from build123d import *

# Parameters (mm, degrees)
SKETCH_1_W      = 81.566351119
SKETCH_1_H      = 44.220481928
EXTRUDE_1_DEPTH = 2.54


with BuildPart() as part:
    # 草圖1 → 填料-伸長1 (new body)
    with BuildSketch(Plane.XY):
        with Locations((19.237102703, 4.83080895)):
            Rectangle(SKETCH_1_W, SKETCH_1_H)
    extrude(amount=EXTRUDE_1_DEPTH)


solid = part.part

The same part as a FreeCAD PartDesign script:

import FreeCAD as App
import Part
import Sketcher

doc = App.newDocument("Part")
params = doc.addObject("Spreadsheet::Sheet", "Params")
for row, (alias, value) in enumerate([
    ("pad1_length", "0.1 in"),
], start=1):
    params.set(f"A{row}", alias)
    params.set(f"B{row}", "=" + value)
    params.setAlias(f"B{row}", alias)

body = doc.addObject("PartDesign::Body", "Body")

# Sketch on XY plane
sketch1 = doc.addObject("Sketcher::SketchObject", "Sketch")
body.addObject(sketch1)
sketch1.AttachmentSupport = (doc.XY_Plane, [""])
sketch1.MapMode = "FlatFace"
sketch1.addGeometry(Part.LineSegment(App.Vector(-21.546073, 26.94105, 0), App.Vector(-21.546073, -17.279432, 0)), False)
sketch1.addGeometry(Part.LineSegment(App.Vector(-21.546073, -17.279432, 0), App.Vector(60.020278, -17.279432, 0)), False)
sketch1.addGeometry(Part.LineSegment(App.Vector(60.020278, -17.279432, 0), App.Vector(60.020278, 26.94105, 0)), False)
sketch1.addGeometry(Part.LineSegment(App.Vector(60.020278, 26.94105, 0), App.Vector(-21.546073, 26.94105, 0)), False)
sketch1.addConstraint(Sketcher.Constraint("Coincident", 0, 2, 1, 1))
sketch1.addConstraint(Sketcher.Constraint("Coincident", 1, 2, 2, 1))
sketch1.addConstraint(Sketcher.Constraint("Coincident", 2, 2, 3, 1))
sketch1.addConstraint(Sketcher.Constraint("Coincident", 3, 2, 0, 1))
sketch1.addConstraint(Sketcher.Constraint("Vertical", 0))
sketch1.addConstraint(Sketcher.Constraint("Horizontal", 1))
sketch1.addConstraint(Sketcher.Constraint("Vertical", 2))
sketch1.addConstraint(Sketcher.Constraint("Horizontal", 3))
sketch1.addConstraint(Sketcher.Constraint("DistanceX", 1, 1, 1, 2, 81.566351))
sketch1.addConstraint(Sketcher.Constraint("DistanceY", 0, 2, 0, 1, 44.220482))
sketch1.addConstraint(Sketcher.Constraint("DistanceX", -1, 1, 1, 2, 60.020278))
sketch1.addConstraint(Sketcher.Constraint("DistanceY", -1, 1, 2, 2, 26.94105))
pad1 = doc.addObject("PartDesign::Pad", "Pad")
body.addObject(pad1)
pad1.Profile = sketch1
pad1.setExpression("Length", "Params.pad1_length")

doc.recompute()
